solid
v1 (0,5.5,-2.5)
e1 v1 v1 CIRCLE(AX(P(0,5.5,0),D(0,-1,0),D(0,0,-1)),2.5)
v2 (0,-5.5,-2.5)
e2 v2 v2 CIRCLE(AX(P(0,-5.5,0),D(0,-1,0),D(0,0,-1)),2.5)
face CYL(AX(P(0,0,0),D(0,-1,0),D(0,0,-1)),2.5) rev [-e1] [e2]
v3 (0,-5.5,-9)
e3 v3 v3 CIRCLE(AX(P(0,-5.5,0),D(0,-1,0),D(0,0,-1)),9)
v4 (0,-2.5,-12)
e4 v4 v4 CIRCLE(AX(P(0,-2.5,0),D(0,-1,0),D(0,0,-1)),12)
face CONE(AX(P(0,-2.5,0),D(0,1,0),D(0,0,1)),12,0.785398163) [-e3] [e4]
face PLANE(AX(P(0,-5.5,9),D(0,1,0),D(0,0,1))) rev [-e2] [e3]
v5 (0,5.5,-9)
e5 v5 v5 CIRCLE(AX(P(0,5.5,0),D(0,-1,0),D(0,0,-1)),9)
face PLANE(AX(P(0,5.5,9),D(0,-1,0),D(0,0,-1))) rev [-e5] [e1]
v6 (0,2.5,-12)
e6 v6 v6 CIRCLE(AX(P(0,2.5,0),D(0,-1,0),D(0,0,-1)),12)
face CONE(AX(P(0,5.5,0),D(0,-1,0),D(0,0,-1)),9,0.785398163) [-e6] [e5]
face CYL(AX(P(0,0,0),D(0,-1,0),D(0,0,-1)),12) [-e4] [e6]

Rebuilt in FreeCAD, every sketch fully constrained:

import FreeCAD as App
import Part
import Sketcher

V = App.Vector
Q = App.Units.Quantity

doc = App.newDocument("Part")
body = doc.addObject("PartDesign::Body", "Body")

sketch1 = doc.addObject("Sketcher::SketchObject", "Sketch")
body.addObject(sketch1)
sketch1.AttachmentSupport = (doc.YZ_Plane, [""])
sketch1.MapMode = "FlatFace"
sketch1.addGeometry([
    Part.LineSegment(V(2.5, 12, 0), V(-2.5, 12, 0)),
    Part.LineSegment(V(-2.5, 12, 0), V(-5.5, 9, 0)),
    Part.LineSegment(V(-5.5, 9, 0), V(-5.5, 2.5, 0)),
    Part.LineSegment(V(-5.5, 2.5, 0), V(5.5, 2.5, 0)),
    Part.LineSegment(V(5.5, 2.5, 0), V(5.5, 9, 0)),
    Part.LineSegment(V(5.5, 9, 0), V(2.5, 12, 0)),
], False)
sketch1.addConstraint([
    Sketcher.Constraint("Coincident", 0, 2, 1, 1),
    Sketcher.Constraint("Coincident", 1, 2, 2, 1),
    Sketcher.Constraint("Coincident", 2, 2, 3, 1),
    Sketcher.Constraint("Coincident", 3, 2, 4, 1),
    Sketcher.Constraint("Coincident", 4, 2, 5, 1),
    Sketcher.Constraint("Coincident", 5, 2, 0, 1),
    Sketcher.Constraint("Horizontal", 0),
    Sketcher.Constraint("Vertical", 2),
    Sketcher.Constraint("Horizontal", 3),
    Sketcher.Constraint("Vertical", 4),
    Sketcher.Constraint("Symmetric", 1, 2, 4, 2, -2),
    Sketcher.Constraint("Perpendicular", 1, 5),
    Sketcher.Constraint("Equal", 1, 5),
    Sketcher.Constraint("DistanceX", 0, 2, 0, 1, Q("5 mm")),
    Sketcher.Constraint("DistanceX", 3, 1, 3, 2, Q("11 mm")),
    Sketcher.Constraint("DistanceY", 2, 2, 2, 1, Q("6.5 mm")),
    Sketcher.Constraint("DistanceY", -1, 1, 0, 2, Q("12 mm")),
])
revolution = doc.addObject("PartDesign::Revolution", "Revolution")
body.addObject(revolution)
revolution.Profile = sketch1
revolution.ReferenceAxis = (sketch1, ["H_Axis"])
revolution.Angle = 360

doc.recompute()
